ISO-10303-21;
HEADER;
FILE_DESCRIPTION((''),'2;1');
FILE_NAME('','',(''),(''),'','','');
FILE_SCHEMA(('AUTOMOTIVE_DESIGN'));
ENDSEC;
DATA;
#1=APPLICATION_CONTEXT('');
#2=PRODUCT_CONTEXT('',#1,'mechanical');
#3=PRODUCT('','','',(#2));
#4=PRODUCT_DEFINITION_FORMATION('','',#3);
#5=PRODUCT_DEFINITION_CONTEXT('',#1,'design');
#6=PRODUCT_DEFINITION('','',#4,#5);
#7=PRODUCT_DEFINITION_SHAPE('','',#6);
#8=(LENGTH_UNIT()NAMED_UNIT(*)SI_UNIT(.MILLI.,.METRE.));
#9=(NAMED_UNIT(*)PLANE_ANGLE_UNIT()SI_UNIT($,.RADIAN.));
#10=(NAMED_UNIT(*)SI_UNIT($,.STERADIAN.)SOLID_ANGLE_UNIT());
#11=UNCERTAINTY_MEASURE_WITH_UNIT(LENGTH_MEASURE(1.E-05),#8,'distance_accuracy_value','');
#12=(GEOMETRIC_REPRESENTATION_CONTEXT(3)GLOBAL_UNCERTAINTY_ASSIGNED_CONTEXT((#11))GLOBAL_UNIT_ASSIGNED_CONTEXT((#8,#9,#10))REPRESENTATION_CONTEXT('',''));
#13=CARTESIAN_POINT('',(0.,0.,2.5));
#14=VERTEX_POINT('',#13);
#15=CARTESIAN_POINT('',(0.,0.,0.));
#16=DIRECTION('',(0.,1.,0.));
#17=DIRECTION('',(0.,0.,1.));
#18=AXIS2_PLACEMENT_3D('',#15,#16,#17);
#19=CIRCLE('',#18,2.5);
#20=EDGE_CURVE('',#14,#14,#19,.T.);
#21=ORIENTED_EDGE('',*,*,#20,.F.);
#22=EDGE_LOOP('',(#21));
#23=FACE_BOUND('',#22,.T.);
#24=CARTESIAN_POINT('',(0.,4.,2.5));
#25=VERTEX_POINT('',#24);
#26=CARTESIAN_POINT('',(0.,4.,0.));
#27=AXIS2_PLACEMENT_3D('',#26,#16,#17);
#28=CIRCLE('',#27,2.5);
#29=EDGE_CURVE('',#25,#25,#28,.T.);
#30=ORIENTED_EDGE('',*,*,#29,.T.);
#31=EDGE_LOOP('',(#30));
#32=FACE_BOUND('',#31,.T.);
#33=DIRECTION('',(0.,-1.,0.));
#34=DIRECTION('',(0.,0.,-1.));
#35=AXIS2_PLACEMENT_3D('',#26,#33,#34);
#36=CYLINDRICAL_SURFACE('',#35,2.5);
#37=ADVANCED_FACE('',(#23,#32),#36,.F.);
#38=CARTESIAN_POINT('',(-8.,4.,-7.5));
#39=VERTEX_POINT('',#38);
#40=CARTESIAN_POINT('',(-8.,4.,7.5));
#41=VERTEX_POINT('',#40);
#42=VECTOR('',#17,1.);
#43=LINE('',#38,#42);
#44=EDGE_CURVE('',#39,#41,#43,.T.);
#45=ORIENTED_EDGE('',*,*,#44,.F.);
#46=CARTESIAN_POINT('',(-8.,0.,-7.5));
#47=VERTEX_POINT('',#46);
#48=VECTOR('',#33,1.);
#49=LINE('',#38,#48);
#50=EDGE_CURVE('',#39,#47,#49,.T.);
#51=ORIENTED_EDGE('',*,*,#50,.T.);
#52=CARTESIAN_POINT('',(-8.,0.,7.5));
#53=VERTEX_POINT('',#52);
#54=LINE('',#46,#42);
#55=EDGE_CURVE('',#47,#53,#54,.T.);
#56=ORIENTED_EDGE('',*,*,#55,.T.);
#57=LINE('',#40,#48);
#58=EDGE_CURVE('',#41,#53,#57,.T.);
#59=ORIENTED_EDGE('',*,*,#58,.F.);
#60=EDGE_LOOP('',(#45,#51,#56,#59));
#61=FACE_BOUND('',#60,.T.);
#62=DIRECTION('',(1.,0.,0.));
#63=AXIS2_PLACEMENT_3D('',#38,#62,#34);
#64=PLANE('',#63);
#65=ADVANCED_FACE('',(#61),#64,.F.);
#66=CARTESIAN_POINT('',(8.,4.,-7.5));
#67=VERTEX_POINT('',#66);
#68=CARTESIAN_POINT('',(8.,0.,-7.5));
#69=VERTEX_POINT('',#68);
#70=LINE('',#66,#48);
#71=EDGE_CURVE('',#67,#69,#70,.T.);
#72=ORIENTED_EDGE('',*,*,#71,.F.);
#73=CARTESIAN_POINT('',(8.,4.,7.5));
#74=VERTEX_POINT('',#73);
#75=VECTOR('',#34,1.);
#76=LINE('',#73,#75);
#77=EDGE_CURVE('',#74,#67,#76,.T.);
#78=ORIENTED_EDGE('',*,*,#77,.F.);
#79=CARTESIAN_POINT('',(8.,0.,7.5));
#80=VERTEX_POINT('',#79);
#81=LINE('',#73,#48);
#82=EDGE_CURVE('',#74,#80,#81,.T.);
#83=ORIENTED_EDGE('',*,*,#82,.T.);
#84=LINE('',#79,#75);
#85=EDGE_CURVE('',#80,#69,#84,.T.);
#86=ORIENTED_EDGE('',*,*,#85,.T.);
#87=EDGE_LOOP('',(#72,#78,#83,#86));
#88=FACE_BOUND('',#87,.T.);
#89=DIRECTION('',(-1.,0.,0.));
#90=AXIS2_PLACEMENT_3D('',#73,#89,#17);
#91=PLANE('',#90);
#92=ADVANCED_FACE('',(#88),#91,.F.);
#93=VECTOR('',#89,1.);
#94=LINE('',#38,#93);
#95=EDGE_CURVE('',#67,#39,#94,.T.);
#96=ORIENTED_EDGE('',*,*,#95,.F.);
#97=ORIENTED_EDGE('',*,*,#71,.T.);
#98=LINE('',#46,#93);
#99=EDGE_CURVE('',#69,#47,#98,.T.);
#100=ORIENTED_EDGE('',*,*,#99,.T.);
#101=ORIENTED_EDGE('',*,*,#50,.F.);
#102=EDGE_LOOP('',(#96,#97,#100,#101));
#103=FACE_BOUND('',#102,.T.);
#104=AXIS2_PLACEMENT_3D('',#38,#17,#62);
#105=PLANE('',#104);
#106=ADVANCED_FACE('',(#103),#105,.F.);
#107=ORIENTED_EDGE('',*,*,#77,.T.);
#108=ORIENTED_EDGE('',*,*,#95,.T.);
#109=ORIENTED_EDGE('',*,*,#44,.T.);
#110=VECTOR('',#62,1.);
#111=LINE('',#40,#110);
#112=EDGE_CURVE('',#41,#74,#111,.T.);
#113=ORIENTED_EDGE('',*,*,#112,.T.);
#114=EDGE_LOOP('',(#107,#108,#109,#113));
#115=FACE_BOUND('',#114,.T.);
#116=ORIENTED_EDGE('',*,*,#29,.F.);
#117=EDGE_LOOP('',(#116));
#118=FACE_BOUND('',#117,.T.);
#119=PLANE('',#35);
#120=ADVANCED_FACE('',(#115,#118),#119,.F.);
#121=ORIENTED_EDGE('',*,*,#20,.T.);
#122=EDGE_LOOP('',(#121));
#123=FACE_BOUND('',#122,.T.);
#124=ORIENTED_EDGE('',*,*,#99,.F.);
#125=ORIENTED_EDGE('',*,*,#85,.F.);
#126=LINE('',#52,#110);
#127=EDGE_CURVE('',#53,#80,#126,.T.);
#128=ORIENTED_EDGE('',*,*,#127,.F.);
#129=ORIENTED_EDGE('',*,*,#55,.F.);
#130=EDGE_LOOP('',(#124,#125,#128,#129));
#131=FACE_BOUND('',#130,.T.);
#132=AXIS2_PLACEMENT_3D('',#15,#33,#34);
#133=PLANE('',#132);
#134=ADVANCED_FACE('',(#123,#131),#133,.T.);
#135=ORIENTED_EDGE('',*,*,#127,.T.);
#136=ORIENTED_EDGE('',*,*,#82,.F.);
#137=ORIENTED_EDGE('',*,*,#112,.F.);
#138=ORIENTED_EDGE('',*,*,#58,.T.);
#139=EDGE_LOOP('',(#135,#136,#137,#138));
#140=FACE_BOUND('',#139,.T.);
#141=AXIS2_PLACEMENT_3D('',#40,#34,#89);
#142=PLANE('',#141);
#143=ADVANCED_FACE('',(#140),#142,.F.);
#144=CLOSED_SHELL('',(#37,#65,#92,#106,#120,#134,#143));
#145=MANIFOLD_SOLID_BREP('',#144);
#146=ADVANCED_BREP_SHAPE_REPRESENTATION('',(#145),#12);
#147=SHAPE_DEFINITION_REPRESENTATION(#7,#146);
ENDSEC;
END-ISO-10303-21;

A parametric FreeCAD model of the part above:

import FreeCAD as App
import Part
import Sketcher
from FreeCAD import Vector


def add_polygon(sketch, points):
    """Adds a closed chain of lines whose ends are joined by coincident constraints."""
    first, n = sketch.GeometryCount, len(points)
    for a, b in zip(points, points[1:] + points[:1]):
        sketch.addGeometry(Part.LineSegment(App.Vector(*a, 0), App.Vector(*b, 0)), False)
    for i in range(n):
        sketch.addConstraint(Sketcher.Constraint("Coincident", first + i, 2, first + (i + 1) % n, 1))

doc = App.newDocument("Part")
body = doc.addObject("PartDesign::Body", "Body")

sketch1 = doc.addObject("Sketcher::SketchObject", "Sketch")
body.addObject(sketch1)
sketch1.AttachmentSupport = (doc.XZ_Plane, [""])
sketch1.MapMode = "FlatFace"
add_polygon(sketch1, [(-8, -7.5), (-8, 7.5), (8, 7.5), (8, -7.5)])
sketch1.addGeometry(Part.Circle(Vector(0, 0, 0), Vector(0, 0, 1), 2.5), False)
sketch1.addConstraint([
    Sketcher.Constraint("Vertical", 0),
    Sketcher.Constraint("Horizontal", 1),
    Sketcher.Constraint("Vertical", 2),
    Sketcher.Constraint("Horizontal", 3),
    Sketcher.Constraint("Coincident", 4, 3, -1, 1),
    Sketcher.Constraint("Symmetric", 0, 2, 2, 2, -1, 1),
    Sketcher.Constraint("Diameter", 4, 5.0),
    Sketcher.Constraint("DistanceX", 1, 1, 1, 2, 16.0),
    Sketcher.Constraint("DistanceY", 0, 1, 0, 2, 15.0),
])
pad1 = doc.addObject("PartDesign::Pad", "Pad")
body.addObject(pad1)
pad1.Profile = sketch1
pad1.Length = 4
pad1.Reversed = True

doc.recompute()
